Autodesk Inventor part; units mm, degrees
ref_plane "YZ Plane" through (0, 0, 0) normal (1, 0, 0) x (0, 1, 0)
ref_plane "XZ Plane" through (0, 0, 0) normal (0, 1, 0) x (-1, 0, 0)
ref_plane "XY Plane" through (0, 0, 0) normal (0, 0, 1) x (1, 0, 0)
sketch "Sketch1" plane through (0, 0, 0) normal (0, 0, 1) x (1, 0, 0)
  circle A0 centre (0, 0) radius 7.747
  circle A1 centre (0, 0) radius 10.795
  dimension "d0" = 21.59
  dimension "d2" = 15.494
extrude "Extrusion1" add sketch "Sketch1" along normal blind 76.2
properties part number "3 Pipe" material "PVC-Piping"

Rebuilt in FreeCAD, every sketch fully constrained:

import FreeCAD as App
import Part
import Sketcher

V = App.Vector
Q = App.Units.Quantity

doc = App.newDocument("Part")
body = doc.addObject("PartDesign::Body", "Body")

# Sketch on XY plane
sketch1 = body.newObject("Sketcher::SketchObject", "Sketch")
sketch1.AttachmentSupport = (doc.getObject("XY_Plane"), [""])
sketch1.MapMode = "FlatFace"
sketch1.addGeometry([
    Part.Circle(V(0, 0, 0), V(0, 0, 1), 11),
    Part.Circle(V(0, 0, 0), V(0, 0, 1), 8),
], False)
sketch1.addConstraint([
    Sketcher.Constraint("Coincident", 0, 3, -1, 1),
    Sketcher.Constraint("Coincident", 1, 3, -1, 1),
    Sketcher.Constraint("Diameter", 0, Q("0.85 in")),
    Sketcher.Constraint("Diameter", 1, Q("0.61 in")),
])
pad1 = body.newObject("PartDesign::Pad", "Pad")
pad1.Profile = sketch1
pad1.Length = Q("3 in")

doc.recompute()
